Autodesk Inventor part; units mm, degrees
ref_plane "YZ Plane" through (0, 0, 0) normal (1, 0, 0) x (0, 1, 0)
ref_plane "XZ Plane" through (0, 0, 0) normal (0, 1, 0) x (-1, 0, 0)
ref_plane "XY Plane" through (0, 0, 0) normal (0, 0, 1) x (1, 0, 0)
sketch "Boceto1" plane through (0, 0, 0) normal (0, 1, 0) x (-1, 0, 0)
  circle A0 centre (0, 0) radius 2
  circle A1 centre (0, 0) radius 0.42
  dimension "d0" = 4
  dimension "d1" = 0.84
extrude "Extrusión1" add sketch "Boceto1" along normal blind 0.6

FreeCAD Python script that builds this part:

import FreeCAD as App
import Part
import Sketcher

V = App.Vector

doc = App.newDocument("Part")
body = doc.addObject("PartDesign::Body", "Body")

sketch1 = body.newObject("Sketcher::SketchObject", "Sketch")
sketch1.AttachmentSupport = (doc.getObject("XZ_Plane"), [""])
sketch1.MapMode = "FlatFace"
sketch1.addGeometry([
    Part.Circle(V(0, 0, 0), V(0, 0, 1), 2),
    Part.Circle(V(0, 0, 0), V(0, 0, 1), 0.42),
], False)
sketch1.addConstraint([
    Sketcher.Constraint("Coincident", 0, 3, -1, 1),
    Sketcher.Constraint("Coincident", 1, 3, -1, 1),
    Sketcher.Constraint("Diameter", 0, 4.0),
    Sketcher.Constraint("Diameter", 1, 0.84),
])
pad1 = body.newObject("PartDesign::Pad", "Pad")
pad1.Profile = sketch1
pad1.Length = 0.6
pad1.Reversed = True

doc.recompute()
